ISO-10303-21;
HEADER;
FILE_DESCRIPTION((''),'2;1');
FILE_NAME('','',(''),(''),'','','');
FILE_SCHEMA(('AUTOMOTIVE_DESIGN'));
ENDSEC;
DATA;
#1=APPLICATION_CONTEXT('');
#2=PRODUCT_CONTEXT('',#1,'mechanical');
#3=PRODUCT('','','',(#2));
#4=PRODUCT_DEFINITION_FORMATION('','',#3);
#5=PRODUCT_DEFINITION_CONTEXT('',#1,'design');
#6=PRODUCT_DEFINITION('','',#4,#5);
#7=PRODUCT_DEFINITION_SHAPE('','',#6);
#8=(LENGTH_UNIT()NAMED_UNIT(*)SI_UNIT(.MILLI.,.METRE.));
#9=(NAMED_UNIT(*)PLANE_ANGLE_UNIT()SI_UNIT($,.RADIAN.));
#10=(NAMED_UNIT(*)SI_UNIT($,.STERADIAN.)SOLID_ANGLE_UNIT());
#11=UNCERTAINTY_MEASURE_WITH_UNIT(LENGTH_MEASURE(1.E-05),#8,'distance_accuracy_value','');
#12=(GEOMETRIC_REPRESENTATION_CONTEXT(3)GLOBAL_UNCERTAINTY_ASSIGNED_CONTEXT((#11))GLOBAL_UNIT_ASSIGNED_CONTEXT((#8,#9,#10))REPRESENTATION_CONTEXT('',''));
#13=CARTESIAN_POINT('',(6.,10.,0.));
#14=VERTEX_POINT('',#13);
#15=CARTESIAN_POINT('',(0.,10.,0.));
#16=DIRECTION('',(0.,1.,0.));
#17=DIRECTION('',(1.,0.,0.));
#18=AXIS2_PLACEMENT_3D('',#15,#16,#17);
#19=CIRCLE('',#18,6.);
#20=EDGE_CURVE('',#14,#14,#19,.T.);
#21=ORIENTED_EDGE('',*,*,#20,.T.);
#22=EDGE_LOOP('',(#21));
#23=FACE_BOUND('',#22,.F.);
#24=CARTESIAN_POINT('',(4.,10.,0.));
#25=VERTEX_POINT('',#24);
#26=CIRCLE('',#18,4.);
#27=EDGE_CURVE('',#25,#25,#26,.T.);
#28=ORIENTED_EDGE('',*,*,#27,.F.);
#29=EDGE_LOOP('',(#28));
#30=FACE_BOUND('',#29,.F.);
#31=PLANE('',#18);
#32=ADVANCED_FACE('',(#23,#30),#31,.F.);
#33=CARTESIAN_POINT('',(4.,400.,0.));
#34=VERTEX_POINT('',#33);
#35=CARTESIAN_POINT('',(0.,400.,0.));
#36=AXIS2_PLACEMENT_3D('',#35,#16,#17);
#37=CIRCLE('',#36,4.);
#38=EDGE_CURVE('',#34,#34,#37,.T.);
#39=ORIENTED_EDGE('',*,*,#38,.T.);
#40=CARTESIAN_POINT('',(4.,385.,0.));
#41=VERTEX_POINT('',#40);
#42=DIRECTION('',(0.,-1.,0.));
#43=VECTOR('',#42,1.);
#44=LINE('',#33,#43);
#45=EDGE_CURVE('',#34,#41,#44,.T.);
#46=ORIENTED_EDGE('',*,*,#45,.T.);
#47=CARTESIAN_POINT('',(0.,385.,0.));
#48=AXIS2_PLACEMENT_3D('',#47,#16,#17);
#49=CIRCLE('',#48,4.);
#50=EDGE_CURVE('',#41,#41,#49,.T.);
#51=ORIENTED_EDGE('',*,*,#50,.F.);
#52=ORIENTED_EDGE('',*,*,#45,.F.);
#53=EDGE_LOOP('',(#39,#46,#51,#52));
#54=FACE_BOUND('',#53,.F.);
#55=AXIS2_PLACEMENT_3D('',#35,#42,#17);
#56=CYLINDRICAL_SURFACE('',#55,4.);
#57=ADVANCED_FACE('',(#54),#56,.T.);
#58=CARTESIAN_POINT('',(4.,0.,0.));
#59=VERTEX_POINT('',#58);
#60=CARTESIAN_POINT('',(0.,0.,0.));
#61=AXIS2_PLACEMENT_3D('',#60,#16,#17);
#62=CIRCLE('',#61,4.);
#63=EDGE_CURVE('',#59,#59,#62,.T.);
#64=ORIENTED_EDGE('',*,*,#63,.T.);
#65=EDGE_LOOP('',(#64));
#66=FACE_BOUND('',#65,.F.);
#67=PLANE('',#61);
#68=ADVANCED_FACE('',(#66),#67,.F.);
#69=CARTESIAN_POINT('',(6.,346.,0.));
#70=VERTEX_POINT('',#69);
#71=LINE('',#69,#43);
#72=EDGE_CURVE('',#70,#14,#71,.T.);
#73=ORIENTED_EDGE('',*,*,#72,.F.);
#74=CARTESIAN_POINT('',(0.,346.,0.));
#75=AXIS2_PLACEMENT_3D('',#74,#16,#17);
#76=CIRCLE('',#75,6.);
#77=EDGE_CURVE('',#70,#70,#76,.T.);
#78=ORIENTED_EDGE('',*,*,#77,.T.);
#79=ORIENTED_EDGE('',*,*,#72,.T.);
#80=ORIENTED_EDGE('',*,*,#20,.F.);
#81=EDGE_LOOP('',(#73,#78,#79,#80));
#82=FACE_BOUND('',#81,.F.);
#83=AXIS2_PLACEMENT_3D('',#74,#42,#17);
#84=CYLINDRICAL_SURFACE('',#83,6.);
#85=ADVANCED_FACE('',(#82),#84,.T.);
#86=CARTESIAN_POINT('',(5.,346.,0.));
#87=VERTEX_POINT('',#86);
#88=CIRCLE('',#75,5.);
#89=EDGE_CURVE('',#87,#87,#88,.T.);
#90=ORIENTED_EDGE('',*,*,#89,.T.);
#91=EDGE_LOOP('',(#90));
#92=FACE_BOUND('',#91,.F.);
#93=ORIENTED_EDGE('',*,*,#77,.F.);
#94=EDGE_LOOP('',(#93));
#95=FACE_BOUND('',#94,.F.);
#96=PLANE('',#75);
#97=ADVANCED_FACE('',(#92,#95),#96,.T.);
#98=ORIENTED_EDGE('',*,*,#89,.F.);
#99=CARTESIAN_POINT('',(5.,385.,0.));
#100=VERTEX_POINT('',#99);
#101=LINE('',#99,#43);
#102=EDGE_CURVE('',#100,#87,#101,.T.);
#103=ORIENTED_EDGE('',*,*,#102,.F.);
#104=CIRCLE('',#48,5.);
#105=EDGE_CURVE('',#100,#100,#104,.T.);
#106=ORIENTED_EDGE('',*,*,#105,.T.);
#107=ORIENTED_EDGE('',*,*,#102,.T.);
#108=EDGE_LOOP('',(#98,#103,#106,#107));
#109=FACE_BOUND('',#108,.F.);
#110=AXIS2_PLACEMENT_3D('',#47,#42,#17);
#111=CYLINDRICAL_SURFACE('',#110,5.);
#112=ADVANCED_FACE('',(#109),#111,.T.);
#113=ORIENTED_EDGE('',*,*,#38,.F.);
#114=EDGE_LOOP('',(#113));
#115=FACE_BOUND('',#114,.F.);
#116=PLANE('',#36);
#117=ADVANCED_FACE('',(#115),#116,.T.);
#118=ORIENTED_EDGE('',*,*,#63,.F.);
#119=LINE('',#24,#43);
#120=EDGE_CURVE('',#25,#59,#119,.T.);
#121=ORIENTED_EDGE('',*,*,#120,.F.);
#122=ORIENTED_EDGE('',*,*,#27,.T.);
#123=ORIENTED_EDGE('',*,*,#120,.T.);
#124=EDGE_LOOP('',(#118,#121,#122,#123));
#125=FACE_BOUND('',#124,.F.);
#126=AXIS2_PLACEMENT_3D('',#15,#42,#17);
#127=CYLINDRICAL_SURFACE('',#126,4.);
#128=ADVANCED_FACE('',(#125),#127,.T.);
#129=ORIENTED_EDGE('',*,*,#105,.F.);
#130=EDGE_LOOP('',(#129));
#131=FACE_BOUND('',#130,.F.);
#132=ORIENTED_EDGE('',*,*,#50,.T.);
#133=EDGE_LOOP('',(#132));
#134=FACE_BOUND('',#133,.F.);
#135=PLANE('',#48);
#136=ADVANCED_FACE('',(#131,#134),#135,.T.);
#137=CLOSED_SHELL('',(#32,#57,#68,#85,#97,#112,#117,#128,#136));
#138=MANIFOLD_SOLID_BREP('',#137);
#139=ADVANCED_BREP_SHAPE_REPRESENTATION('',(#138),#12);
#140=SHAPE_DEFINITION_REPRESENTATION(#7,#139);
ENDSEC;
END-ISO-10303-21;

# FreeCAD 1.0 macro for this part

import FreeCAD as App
import Part
import Sketcher
from FreeCAD import Vector
Q = App.Units.Quantity


def add_polygon(sketch, points):
    """Adds a closed chain of lines whose ends are joined by coincident constraints."""
    first, n = sketch.GeometryCount, len(points)
    for a, b in zip(points, points[1:] + points[:1]):
        sketch.addGeometry(Part.LineSegment(App.Vector(*a, 0), App.Vector(*b, 0)), False)
    for i in range(n):
        sketch.addConstraint(Sketcher.Constraint("Coincident", first + i, 2, first + (i + 1) % n, 1))

doc = App.newDocument("Part")
body = doc.addObject("PartDesign::Body", "Body")

# Sketch on XY plane
sketch1 = body.newObject("Sketcher::SketchObject", "Sketch")
sketch1.AttachmentSupport = (doc.getObject("XY_Plane"), [""])
sketch1.MapMode = "FlatFace"
add_polygon(sketch1, [(0, 400), (0, 0), (4, 0), (4, 10), (6, 10), (6, 346), (5, 346), (5, 385), (4, 385), (4, 400)])  # lines 0-9
sketch1.addConstraint([
    Sketcher.Constraint("Vertical", 0),
    Sketcher.Constraint("Horizontal", 1),
    Sketcher.Constraint("Vertical", 2),
    Sketcher.Constraint("Horizontal", 3),
    Sketcher.Constraint("Vertical", 4),
    Sketcher.Constraint("Horizontal", 5),
    Sketcher.Constraint("Vertical", 6),
    Sketcher.Constraint("Horizontal", 7),
    Sketcher.Constraint("Vertical", 8),
    Sketcher.Constraint("Horizontal", 9),
    Sketcher.Constraint("Coincident", 0, 2, -1, 1),
    Sketcher.Constraint("Vertical", 2, 2, 7, 2),
    Sketcher.Constraint("Equal", 5, 7),
    Sketcher.Constraint("DistanceY", 0, 2, 0, 1, Q("400 mm")),
    Sketcher.Constraint("DistanceY", 2, 1, 2, 2, Q("10 mm")),
    Sketcher.Constraint("DistanceY", 6, 1, 6, 2, Q("39 mm")),
    Sketcher.Constraint("DistanceY", 8, 1, 8, 2, Q("15 mm")),
    Sketcher.Constraint("DistanceX", 1, 1, 1, 2, Q("4 mm")),
    Sketcher.Constraint("DistanceX", 3, 1, 3, 2, Q("2 mm")),
])
revolution = body.newObject("PartDesign::Revolution", "Revolution")
revolution.Profile = sketch1
revolution.ReferenceAxis = (sketch1, ["V_Axis"])
revolution.Angle = 360

doc.recompute()
